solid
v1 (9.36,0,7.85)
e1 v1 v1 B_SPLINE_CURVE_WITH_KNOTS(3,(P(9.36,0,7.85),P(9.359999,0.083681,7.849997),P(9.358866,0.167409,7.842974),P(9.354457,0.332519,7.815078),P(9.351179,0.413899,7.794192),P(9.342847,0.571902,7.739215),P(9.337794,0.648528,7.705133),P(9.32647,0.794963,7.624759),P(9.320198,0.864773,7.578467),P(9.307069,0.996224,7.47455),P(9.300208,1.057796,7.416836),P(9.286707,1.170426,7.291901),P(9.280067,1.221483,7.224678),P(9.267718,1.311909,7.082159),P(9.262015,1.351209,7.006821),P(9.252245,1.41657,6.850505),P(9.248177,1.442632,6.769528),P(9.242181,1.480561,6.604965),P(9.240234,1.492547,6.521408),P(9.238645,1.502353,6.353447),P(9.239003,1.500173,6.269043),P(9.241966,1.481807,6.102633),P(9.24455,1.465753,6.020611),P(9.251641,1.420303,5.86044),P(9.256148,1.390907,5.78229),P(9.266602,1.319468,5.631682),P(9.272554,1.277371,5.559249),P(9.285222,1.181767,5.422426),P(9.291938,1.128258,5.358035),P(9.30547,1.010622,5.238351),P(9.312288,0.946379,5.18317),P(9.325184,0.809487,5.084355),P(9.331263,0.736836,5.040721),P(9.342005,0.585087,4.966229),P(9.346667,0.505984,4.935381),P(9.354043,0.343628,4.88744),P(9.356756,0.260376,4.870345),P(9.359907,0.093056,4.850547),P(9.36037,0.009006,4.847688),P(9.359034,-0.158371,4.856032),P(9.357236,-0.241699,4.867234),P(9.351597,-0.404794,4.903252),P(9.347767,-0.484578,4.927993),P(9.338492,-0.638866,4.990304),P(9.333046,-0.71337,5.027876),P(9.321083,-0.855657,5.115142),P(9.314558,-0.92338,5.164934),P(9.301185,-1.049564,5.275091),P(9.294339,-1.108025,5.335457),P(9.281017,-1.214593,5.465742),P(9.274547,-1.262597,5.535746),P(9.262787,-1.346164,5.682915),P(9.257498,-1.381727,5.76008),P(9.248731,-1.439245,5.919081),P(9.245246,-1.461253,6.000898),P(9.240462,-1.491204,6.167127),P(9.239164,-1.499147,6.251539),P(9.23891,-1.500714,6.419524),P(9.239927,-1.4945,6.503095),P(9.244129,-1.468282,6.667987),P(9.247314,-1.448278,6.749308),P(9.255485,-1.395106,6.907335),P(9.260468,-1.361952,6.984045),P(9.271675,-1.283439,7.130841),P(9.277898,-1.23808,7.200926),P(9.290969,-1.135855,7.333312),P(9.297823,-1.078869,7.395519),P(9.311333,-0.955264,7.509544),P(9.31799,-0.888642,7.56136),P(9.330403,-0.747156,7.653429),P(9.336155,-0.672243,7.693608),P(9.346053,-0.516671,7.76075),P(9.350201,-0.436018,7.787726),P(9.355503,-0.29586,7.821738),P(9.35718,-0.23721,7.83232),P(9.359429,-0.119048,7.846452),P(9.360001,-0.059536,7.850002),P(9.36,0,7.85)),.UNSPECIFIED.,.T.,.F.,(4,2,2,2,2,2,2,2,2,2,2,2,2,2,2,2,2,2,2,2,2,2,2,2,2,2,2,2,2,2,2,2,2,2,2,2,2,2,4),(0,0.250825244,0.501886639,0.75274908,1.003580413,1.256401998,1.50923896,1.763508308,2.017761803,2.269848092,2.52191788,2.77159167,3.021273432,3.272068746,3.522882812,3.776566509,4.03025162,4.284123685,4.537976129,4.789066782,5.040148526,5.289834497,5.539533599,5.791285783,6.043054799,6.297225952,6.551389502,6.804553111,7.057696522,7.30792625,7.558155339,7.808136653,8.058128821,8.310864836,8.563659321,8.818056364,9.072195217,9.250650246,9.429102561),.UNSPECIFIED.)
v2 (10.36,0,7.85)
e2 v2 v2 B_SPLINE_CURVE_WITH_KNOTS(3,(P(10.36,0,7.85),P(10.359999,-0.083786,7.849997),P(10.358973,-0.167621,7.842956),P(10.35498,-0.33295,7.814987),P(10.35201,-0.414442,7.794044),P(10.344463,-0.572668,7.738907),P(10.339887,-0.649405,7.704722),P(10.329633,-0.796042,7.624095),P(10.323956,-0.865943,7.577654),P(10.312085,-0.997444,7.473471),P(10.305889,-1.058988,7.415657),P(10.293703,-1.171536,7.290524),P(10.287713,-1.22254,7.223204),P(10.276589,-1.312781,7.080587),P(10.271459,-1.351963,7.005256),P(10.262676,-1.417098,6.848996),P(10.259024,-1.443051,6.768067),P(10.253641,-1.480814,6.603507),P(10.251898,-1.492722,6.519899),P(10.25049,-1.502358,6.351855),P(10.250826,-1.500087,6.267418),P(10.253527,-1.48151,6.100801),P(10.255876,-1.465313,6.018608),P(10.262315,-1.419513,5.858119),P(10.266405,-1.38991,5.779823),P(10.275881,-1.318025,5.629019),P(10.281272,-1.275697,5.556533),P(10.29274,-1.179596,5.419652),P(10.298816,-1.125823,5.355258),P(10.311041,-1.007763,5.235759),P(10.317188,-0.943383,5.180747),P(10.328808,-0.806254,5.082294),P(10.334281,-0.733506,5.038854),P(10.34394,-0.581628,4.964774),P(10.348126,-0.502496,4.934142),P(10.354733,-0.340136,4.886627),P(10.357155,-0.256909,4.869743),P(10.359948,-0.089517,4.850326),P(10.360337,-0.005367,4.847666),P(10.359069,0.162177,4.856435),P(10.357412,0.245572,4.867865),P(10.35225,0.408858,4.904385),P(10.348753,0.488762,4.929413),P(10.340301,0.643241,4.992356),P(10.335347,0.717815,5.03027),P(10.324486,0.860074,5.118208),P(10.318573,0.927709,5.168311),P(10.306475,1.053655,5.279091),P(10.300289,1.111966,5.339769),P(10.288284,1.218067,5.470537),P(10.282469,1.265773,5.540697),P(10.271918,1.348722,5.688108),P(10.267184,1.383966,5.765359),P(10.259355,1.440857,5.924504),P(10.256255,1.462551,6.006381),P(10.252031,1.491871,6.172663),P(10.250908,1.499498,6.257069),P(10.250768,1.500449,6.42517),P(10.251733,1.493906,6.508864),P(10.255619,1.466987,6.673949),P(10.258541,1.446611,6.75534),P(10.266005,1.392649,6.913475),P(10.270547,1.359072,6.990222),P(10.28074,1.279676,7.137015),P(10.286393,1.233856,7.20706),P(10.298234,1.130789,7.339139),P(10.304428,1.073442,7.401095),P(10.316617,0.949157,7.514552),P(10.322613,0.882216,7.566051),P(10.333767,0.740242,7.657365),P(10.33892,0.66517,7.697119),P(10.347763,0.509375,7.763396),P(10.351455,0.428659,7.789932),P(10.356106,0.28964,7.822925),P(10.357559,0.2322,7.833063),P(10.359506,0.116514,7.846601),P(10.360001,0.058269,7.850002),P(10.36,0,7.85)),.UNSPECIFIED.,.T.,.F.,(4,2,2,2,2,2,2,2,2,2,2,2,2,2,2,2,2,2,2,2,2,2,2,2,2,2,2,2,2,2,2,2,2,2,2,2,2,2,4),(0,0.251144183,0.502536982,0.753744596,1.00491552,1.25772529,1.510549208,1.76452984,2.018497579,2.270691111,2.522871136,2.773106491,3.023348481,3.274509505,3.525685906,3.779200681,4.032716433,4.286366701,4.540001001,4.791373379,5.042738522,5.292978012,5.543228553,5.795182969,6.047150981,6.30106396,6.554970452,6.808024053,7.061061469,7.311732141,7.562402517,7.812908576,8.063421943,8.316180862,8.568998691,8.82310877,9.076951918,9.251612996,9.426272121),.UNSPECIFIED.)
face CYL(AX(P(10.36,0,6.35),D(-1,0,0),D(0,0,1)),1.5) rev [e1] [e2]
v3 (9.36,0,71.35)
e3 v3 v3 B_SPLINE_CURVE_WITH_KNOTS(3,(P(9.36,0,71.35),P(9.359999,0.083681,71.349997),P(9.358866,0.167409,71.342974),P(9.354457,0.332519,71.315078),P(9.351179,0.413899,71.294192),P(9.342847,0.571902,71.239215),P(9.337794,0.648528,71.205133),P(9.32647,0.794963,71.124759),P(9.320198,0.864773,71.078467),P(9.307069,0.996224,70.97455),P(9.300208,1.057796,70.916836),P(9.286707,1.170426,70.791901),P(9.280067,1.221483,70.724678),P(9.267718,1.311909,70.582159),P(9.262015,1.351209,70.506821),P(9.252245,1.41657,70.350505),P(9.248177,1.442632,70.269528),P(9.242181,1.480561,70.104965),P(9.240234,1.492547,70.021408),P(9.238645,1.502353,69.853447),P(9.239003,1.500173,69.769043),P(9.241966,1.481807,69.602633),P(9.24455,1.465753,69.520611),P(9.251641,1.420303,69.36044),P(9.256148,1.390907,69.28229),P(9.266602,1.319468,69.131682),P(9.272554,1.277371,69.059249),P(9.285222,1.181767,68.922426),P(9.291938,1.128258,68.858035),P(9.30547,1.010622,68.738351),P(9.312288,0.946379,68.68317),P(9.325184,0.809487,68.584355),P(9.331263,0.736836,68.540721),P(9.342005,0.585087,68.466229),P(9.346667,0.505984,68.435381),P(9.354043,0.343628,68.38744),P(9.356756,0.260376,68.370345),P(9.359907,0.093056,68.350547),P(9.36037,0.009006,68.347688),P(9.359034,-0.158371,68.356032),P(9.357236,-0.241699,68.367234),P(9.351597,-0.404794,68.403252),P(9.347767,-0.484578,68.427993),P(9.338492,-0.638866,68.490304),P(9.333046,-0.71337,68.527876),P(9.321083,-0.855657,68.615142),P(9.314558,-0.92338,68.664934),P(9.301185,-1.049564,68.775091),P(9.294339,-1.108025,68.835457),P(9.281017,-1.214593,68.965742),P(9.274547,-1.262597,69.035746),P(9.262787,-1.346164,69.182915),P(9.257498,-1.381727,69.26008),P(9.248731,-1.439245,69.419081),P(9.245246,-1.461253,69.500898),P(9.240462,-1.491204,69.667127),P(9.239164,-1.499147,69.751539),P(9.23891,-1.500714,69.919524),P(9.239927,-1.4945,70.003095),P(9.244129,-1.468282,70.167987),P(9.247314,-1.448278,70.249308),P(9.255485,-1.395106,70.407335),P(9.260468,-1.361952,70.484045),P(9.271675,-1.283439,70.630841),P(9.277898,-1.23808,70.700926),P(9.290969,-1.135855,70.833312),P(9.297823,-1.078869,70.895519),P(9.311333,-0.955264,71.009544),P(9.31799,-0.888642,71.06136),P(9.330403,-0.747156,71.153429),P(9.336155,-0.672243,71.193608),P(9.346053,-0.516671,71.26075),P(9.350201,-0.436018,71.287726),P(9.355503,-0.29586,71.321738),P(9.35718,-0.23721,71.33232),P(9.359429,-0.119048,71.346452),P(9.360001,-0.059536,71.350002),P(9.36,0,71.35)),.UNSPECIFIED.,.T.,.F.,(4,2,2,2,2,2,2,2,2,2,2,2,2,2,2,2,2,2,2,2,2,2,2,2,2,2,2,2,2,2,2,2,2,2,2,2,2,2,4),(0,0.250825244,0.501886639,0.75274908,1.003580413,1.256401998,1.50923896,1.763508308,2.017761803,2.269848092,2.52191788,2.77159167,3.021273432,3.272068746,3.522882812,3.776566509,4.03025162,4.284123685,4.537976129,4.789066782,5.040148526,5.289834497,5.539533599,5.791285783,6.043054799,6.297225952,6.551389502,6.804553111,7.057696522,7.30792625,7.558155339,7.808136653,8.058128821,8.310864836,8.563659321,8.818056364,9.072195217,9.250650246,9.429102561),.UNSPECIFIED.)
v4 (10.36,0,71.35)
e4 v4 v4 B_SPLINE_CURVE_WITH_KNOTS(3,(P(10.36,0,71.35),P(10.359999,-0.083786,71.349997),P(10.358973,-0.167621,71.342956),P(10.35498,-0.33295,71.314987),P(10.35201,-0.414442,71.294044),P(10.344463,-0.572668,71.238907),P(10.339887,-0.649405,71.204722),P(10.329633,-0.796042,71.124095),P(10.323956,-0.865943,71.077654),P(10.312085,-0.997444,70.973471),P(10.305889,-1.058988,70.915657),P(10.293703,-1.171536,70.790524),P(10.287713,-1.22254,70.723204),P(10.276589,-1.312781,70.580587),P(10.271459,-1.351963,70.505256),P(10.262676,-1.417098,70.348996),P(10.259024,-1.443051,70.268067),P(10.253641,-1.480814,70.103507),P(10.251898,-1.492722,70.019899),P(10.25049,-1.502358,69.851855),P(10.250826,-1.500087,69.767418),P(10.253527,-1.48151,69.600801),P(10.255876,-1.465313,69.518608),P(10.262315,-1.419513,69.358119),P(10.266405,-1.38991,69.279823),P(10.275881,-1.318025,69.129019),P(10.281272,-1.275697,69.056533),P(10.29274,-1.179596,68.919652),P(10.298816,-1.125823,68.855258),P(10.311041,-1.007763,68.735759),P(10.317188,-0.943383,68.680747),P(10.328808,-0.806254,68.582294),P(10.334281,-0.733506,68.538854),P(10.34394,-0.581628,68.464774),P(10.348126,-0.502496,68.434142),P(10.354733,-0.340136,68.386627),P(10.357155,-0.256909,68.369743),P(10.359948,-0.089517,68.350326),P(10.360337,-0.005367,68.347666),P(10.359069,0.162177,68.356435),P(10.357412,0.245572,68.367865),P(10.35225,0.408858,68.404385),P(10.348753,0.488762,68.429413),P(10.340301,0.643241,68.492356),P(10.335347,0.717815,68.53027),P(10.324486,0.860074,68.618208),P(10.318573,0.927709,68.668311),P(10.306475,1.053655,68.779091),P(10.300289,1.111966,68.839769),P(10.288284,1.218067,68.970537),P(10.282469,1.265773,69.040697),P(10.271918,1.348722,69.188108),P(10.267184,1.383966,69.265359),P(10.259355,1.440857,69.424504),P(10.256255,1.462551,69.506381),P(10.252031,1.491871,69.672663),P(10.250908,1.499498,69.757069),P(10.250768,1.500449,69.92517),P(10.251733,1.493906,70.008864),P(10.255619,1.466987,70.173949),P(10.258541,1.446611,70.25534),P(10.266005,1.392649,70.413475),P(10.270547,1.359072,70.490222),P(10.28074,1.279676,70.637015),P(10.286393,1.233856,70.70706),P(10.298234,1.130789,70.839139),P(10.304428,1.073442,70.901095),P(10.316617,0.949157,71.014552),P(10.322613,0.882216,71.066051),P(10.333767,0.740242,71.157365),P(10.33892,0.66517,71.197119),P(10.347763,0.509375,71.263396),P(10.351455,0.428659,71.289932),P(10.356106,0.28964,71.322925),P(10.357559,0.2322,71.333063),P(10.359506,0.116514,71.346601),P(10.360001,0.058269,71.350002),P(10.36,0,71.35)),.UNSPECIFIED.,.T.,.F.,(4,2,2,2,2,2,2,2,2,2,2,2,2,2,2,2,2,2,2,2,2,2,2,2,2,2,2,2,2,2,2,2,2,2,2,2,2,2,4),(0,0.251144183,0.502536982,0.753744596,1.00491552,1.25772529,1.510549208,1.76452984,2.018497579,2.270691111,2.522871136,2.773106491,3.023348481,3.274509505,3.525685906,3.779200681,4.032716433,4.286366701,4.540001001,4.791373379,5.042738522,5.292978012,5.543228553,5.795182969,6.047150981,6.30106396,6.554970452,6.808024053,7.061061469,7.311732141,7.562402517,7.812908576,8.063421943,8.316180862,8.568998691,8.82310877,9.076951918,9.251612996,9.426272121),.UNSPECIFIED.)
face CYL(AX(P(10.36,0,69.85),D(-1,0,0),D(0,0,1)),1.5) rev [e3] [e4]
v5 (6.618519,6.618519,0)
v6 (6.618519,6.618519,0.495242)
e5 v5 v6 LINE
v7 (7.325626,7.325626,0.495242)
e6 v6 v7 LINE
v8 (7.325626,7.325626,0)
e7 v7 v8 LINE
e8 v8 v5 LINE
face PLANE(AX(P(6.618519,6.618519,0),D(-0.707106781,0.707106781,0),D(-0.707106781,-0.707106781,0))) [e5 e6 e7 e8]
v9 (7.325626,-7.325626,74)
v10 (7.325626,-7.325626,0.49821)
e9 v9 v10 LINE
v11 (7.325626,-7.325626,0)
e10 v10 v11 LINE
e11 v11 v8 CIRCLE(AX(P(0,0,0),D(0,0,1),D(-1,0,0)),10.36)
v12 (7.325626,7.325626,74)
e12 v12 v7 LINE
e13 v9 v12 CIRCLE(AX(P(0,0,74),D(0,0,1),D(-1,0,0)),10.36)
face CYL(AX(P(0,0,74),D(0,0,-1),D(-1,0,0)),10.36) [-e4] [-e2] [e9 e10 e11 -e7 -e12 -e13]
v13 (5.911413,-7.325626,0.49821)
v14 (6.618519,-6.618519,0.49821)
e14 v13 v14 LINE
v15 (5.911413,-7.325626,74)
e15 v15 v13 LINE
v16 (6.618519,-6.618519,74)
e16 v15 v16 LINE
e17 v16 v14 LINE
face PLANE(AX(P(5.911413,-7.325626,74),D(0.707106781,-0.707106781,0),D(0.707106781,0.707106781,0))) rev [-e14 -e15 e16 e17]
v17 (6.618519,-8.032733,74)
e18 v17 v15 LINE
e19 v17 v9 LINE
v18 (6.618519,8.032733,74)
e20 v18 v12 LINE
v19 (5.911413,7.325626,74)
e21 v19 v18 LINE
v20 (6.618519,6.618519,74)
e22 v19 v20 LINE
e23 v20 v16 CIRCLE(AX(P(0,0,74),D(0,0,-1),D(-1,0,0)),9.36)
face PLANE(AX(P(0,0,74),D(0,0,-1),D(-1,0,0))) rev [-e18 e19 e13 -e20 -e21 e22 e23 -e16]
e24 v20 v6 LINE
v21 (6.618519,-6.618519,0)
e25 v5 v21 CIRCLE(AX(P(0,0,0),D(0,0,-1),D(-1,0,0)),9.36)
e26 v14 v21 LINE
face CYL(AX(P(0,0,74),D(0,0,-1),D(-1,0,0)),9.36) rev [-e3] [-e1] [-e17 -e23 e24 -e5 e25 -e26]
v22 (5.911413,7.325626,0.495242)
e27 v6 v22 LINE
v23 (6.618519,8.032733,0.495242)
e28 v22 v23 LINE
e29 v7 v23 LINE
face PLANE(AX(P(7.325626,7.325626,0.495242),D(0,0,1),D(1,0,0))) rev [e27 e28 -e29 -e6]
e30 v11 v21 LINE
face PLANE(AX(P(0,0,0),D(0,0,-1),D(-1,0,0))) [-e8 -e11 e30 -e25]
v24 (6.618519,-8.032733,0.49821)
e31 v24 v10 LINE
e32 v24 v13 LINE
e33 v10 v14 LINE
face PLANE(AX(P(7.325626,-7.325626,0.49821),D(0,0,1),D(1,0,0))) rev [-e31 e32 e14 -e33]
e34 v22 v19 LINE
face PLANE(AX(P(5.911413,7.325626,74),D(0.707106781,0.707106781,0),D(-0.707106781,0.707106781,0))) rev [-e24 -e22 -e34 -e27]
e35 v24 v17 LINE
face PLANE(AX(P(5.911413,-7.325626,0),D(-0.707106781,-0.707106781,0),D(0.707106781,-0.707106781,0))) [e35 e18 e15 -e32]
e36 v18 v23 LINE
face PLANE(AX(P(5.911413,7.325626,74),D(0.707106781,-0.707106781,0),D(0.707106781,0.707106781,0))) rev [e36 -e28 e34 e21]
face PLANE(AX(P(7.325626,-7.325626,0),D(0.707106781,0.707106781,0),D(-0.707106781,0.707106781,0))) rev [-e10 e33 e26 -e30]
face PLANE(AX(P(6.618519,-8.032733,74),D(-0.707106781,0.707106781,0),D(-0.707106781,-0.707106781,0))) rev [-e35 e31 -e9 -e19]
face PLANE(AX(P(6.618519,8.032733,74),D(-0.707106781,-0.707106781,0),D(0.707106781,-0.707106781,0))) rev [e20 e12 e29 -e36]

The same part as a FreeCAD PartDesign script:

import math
import FreeCAD as App
import Part
import Sketcher
from FreeCAD import Vector


def add_polygon(sketch, points):
    """Adds a closed chain of lines whose ends are joined by coincident constraints."""
    first, n = sketch.GeometryCount, len(points)
    for a, b in zip(points, points[1:] + points[:1]):
        sketch.addGeometry(Part.LineSegment(App.Vector(*a, 0), App.Vector(*b, 0)), False)
    for i in range(n):
        sketch.addConstraint(Sketcher.Constraint("Coincident", first + i, 2, first + (i + 1) % n, 1))

doc = App.newDocument("Part")
body = doc.addObject("PartDesign::Body", "Body")

# Sketch on XY plane
sketch1 = body.newObject("Sketcher::SketchObject", "Sketch")
sketch1.AttachmentSupport = (doc.getObject("XY_Plane"), [""])
sketch1.MapMode = "FlatFace"
sketch1.addGeometry([
    Part.LineSegment(Vector(7.3, 7.3, 0), Vector(6.6, 6.6, 0)),
    Part.ArcOfCircle(Part.Circle(Vector(0, 0, 0), Vector(0, 0, 1), 9.4), math.radians(-45), math.radians(45)),
    Part.LineSegment(Vector(6.6, -6.6, 0), Vector(7.3, -7.3, 0)),
    Part.ArcOfCircle(Part.Circle(Vector(0, 0, 0), Vector(0, 0, 1), 10.4), math.radians(-45), math.radians(45)),
], False)
sketch1.addConstraint([
    Sketcher.Constraint("Coincident", 0, 2, 1, 2),
    Sketcher.Constraint("Coincident", 1, 1, 2, 1),
    Sketcher.Constraint("Coincident", 2, 2, 3, 1),
    Sketcher.Constraint("Coincident", 3, 2, 0, 1),
    Sketcher.Constraint("Coincident", 1, 3, -1, 1),
    Sketcher.Constraint("Coincident", 3, 3, -1, 1),
    Sketcher.Constraint("Perpendicular", 0, 2),
    Sketcher.Constraint("Vertical", 0, 2, 1, 1),
    Sketcher.Constraint("Vertical", 2, 2, 3, 2),
    Sketcher.Constraint("Radius", 1, 9.36),
    Sketcher.Constraint("Radius", 3, 10.36),
    Sketcher.Constraint("DistanceX", -1, 1, 0, 2, 6.618519),
])
pad1 = body.newObject("PartDesign::Pad", "Pad")
pad1.Profile = sketch1
pad1.Length = 74

# Sketch on YZ plane
sketch2 = body.newObject("Sketcher::SketchObject", "Sketch001")
sketch2.AttachmentSupport = (doc.getObject("YZ_Plane"), [""])
sketch2.MapMode = "FlatFace"
sketch2.addGeometry([
    Part.Circle(Vector(0, 6.3, 0), Vector(0, 0, 1), 1.5),
    Part.Circle(Vector(0, 69.8, 0), Vector(0, 0, 1), 1.5),
], False)
sketch2.addConstraint([
    Sketcher.Constraint("Equal", 0, 1),
    Sketcher.Constraint("PointOnObject", 0, 3, -2),
    Sketcher.Constraint("PointOnObject", 1, 3, -2),
    Sketcher.Constraint("Diameter", 0, 3.0),
    Sketcher.Constraint("DistanceY", 0, 3, 1, 3, 63.5),
    Sketcher.Constraint("DistanceY", -1, 1, 0, 3, 6.35),
])
pocket1 = body.newObject("PartDesign::Pocket", "Pocket")
pocket1.Profile = sketch2
pocket1.Type = "ThroughAll"
pocket1.Reversed = True

# Sketch on an angled plane
sketch3 = body.newObject("Sketcher::SketchObject", "Sketch002")
sketch3.Placement = App.Placement(Vector(0, 0, 0), App.Rotation(Vector(0, 0, 1), Vector(0.707106781, 0.707106781, 0), Vector(-0.707106781, 0.707106781, 0), "ZXY"))
add_polygon(sketch3, [(0, 10.4), (0, 9.4), (74, 9.4), (74, 10.4)])  # lines 0-3
sketch3.addConstraint([
    Sketcher.Constraint("Vertical", 0),
    Sketcher.Constraint("Horizontal", 1),
    Sketcher.Constraint("Vertical", 2),
    Sketcher.Constraint("Horizontal", 3),
    Sketcher.Constraint("PointOnObject", 0, 2, -2),
    Sketcher.Constraint("DistanceX", 1, 1, 1, 2, 74.0),
    Sketcher.Constraint("DistanceY", 0, 2, 0, 1, 1.0),
    Sketcher.Constraint("DistanceY", -1, 1, 0, 2, 9.36),
])
pad2 = body.newObject("PartDesign::Pad", "Pad001")
pad2.Profile = sketch3
pad2.Length = 1

# Sketch on an angled plane
sketch4 = body.newObject("Sketcher::SketchObject", "Sketch003")
sketch4.Placement = App.Placement(Vector(0, 0, 0), App.Rotation(Vector(0.707106781, -0.707106781, 0), Vector(0, 0, 0.999999999), Vector(-0.707106781, -0.707106781, 0), "ZXY"))
add_polygon(sketch4, [(9.4, 74), (9.4, 0), (10.4, 0), (10.4, 74)])  # lines 0-3
sketch4.addConstraint([
    Sketcher.Constraint("Vertical", 0),
    Sketcher.Constraint("Horizontal", 1),
    Sketcher.Constraint("Vertical", 2),
    Sketcher.Constraint("Horizontal", 3),
    Sketcher.Constraint("PointOnObject", 0, 2, -1),
    Sketcher.Constraint("DistanceX", 1, 1, 1, 2, 1.0),
    Sketcher.Constraint("DistanceY", 0, 2, 0, 1, 74.0),
    Sketcher.Constraint("DistanceX", -1, 1, 0, 2, 9.36),
])
pad3 = body.newObject("PartDesign::Pad", "Pad002")
pad3.Profile = sketch4
pad3.Length = 1

# Sketch on an angled plane
sketch5 = body.newObject("Sketcher::SketchObject", "Sketch004")
sketch5.Placement = App.Placement(Vector(-0.707107, 0.707107, 0), App.Rotation(Vector(0, 0, 1), Vector(0.707106781, 0.707106781, 0), Vector(-0.707106781, 0.707106781, 0), "ZXY"))
add_polygon(sketch5, [(0, 10.36), (0, 9.36), (0.5, 9.36), (0.5, 10.36)])  # lines 0-3
sketch5.addConstraint([
    Sketcher.Constraint("Vertical", 0),
    Sketcher.Constraint("Horizontal", 1),
    Sketcher.Constraint("Vertical", 2),
    Sketcher.Constraint("Horizontal", 3),
    Sketcher.Constraint("PointOnObject", 0, 2, -2),
    Sketcher.Constraint("DistanceY", 0, 2, 0, 1, 1.0),
    Sketcher.Constraint("DistanceY", -1, 1, 0, 2, 9.36),
    Sketcher.Constraint("DistanceX", 1, 1, 1, 2, 0.495242),
])
pocket2 = body.newObject("PartDesign::Pocket", "Pocket001")
pocket2.Profile = sketch5
pocket2.Length = 1

# Sketch on an angled plane
sketch6 = body.newObject("Sketcher::SketchObject", "Sketch005")
sketch6.Placement = App.Placement(Vector(6.618519, -6.618519, 0), App.Rotation(Vector(-0.707106781, -0.707106781, 0), Vector(0, 0, 0.999999999), Vector(-0.707106781, 0.707106781, 0), "ZXY"))
add_polygon(sketch6, [(0, 0.5), (0, 0), (1, 0), (1, 0.5)])  # lines 0-3
sketch6.addConstraint([
    Sketcher.Constraint("Vertical", 0),
    Sketcher.Constraint("Horizontal", 1),
    Sketcher.Constraint("Vertical", 2),
    Sketcher.Constraint("Horizontal", 3),
    Sketcher.Constraint("Coincident", 0, 2, -1, 1),
    Sketcher.Constraint("DistanceX", 1, 1, 1, 2, 1.0),
    Sketcher.Constraint("DistanceY", 0, 2, 0, 1, 0.49821),
])
pocket3 = body.newObject("PartDesign::Pocket", "Pocket002")
pocket3.Profile = sketch6
pocket3.Length = 1

doc.recompute()
